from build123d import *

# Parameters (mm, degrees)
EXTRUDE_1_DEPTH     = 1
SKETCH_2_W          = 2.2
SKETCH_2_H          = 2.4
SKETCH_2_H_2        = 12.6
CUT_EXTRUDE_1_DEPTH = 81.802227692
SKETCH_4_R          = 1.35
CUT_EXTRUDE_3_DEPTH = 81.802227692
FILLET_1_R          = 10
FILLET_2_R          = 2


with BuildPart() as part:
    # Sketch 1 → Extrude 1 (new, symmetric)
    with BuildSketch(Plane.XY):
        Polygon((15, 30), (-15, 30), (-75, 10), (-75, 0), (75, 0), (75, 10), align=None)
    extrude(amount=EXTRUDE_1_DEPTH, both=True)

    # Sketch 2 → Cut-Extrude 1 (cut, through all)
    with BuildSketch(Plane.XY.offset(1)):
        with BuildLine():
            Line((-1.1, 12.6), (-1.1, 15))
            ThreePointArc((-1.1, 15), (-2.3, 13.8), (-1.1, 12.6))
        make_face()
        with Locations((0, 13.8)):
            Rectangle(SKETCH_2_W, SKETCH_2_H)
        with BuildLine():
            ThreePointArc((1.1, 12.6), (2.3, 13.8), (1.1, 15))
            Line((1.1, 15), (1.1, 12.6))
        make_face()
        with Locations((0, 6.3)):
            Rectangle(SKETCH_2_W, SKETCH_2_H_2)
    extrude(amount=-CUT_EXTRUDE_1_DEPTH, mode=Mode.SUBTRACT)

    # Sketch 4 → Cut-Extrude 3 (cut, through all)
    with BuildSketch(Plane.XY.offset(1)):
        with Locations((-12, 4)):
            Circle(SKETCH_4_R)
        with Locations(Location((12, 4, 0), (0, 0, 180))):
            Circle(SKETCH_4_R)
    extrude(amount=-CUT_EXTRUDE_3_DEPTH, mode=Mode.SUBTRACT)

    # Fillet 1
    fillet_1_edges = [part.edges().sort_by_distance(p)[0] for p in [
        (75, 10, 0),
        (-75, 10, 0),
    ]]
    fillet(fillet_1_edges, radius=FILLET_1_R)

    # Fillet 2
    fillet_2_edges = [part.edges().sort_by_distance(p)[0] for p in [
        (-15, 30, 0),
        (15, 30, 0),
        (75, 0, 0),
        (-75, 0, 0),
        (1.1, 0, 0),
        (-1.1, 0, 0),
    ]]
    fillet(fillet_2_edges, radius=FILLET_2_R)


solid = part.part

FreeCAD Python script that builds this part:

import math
import FreeCAD as App
import Part
import Sketcher


def edges_at(feature, points):
    """Names of the edges that pass closest to the given points."""
    edges = feature.Shape.Edges
    near = lambda p: min(range(len(edges)), key=lambda i: edges[i].distToShape(Part.Vertex(*p))[0])
    return sorted({f"Edge{near(p) + 1}" for p in points})

doc = App.newDocument("Part")
body = doc.addObject("PartDesign::Body", "Body")

# Sketch on XY plane
sketch1 = doc.addObject("Sketcher::SketchObject", "Sketch")
body.addObject(sketch1)
sketch1.AttachmentSupport = (doc.XY_Plane, [""])
sketch1.MapMode = "FlatFace"
sketch1.addGeometry([
    Part.LineSegment(App.Vector(15, 30, 0), App.Vector(-15, 30, 0)),  # 0
    Part.LineSegment(App.Vector(-15, 30, 0), App.Vector(-75, 10, 0)),  # 1
    Part.LineSegment(App.Vector(-75, 10, 0), App.Vector(-75, 0, 0)),  # 2
    Part.LineSegment(App.Vector(-75, 0, 0), App.Vector(75, 0, 0)),  # 3
    Part.LineSegment(App.Vector(75, 0, 0), App.Vector(75, 10, 0)),  # 4
    Part.LineSegment(App.Vector(75, 10, 0), App.Vector(15, 30, 0)),  # 5
], False)
sketch1.addConstraint([
    Sketcher.Constraint("Coincident", 0, 2, 1, 1),
    Sketcher.Constraint("Coincident", 1, 2, 2, 1),
    Sketcher.Constraint("Coincident", 2, 2, 3, 1),
    Sketcher.Constraint("Coincident", 3, 2, 4, 1),
    Sketcher.Constraint("Coincident", 4, 2, 5, 1),
    Sketcher.Constraint("Coincident", 5, 2, 0, 1),
    Sketcher.Constraint("Horizontal", 0),
    Sketcher.Constraint("Vertical", 2),
    Sketcher.Constraint("Horizontal", 3),
    Sketcher.Constraint("Vertical", 4),
    Sketcher.Constraint("Symmetric", 2, 2, 3, 2, -1, 1),
    Sketcher.Constraint("Horizontal", 1, 2, 4, 2),
    Sketcher.Constraint("Equal", 1, 5),
    Sketcher.Constraint("DistanceX", 0, 2, 0, 1, 30.0),
    Sketcher.Constraint("DistanceX", 3, 1, 3, 2, 150.0),
    Sketcher.Constraint("DistanceY", 2, 2, 2, 1, 10.0),
    Sketcher.Constraint("DistanceY", -1, 1, 0, 2, 30.0),
])
pad1 = doc.addObject("PartDesign::Pad", "Pad")
body.addObject(pad1)
pad1.Profile = sketch1
pad1.Length = 2
pad1.Midplane = True

# Sketch on XY plane
sketch2 = doc.addObject("Sketcher::SketchObject", "Sketch001")
body.addObject(sketch2)
sketch2.AttachmentSupport = (doc.XY_Plane, [""])
sketch2.MapMode = "FlatFace"
sketch2.AttachmentOffset = App.Placement(App.Vector(0, 0, 1), App.Rotation())
sketch2.addGeometry([
    Part.ArcOfCircle(Part.Circle(App.Vector(-1.1, 13.8, 0), App.Vector(0, 0, 1), 1.2), math.radians(90), math.radians(270)),  # 0
    Part.LineSegment(App.Vector(-1.1, 12.6, 0), App.Vector(-1.1, 0, 0)),  # 1
    Part.LineSegment(App.Vector(-1.1, 0, 0), App.Vector(1.1, 0, 0)),  # 2
    Part.LineSegment(App.Vector(1.1, 0, 0), App.Vector(1.1, 12.6, 0)),  # 3
    Part.ArcOfCircle(Part.Circle(App.Vector(1.1, 13.8, 0), App.Vector(0, 0, 1), 1.2), math.radians(-90), math.radians(90)),  # 4
    Part.LineSegment(App.Vector(1.1, 15, 0), App.Vector(-1.1, 15, 0)),  # 5
], False)
sketch2.addConstraint([
    Sketcher.Constraint("Coincident", 0, 2, 1, 1),
    Sketcher.Constraint("Coincident", 1, 2, 2, 1),
    Sketcher.Constraint("Coincident", 2, 2, 3, 1),
    Sketcher.Constraint("Coincident", 3, 2, 4, 1),
    Sketcher.Constraint("Tangent", 4, 2, 5, 1),
    Sketcher.Constraint("Tangent", 5, 2, 0, 1),
    Sketcher.Constraint("Vertical", 1),
    Sketcher.Constraint("Horizontal", 2),
    Sketcher.Constraint("Vertical", 3),
    Sketcher.Constraint("Horizontal", 5),
    Sketcher.Constraint("Equal", 0, 4),
    Sketcher.Constraint("Symmetric", 1, 2, 2, 2, -1, 1),
    Sketcher.Constraint("Vertical", 4, 3, 2, 2),
    Sketcher.Constraint("Vertical", 1, 2, 5, 2),
    Sketcher.Constraint("Radius", 0, 1.2),
    Sketcher.Constraint("DistanceX", 2, 1, 2, 2, 2.2),
    Sketcher.Constraint("DistanceY", 1, 2, 1, 1, 12.6),
])
pocket1 = doc.addObject("PartDesign::Pocket", "Pocket")
body.addObject(pocket1)
pocket1.Profile = sketch2
pocket1.Type = "ThroughAll"

# Sketch on XY plane
sketch3 = doc.addObject("Sketcher::SketchObject", "Sketch002")
body.addObject(sketch3)
sketch3.AttachmentSupport = (doc.XY_Plane, [""])
sketch3.MapMode = "FlatFace"
sketch3.AttachmentOffset = App.Placement(App.Vector(0, 0, 1), App.Rotation())
sketch3.addGeometry([
    Part.Circle(App.Vector(-12, 4, 0), App.Vector(0, 0, 1), 1.4),
    Part.Circle(App.Vector(12, 4, 0), App.Vector(0, 0, 1), 1.4),
], False)
sketch3.addConstraint([
    Sketcher.Constraint("Equal", 0, 1),
    Sketcher.Constraint("Symmetric", 0, 3, 1, 3, -2),
    Sketcher.Constraint("Diameter", 0, 2.7),
    Sketcher.Constraint("DistanceX", 0, 3, -1, 1, 12.0),
    Sketcher.Constraint("DistanceY", -1, 1, 0, 3, 4.0),
])
pocket2 = doc.addObject("PartDesign::Pocket", "Pocket001")
body.addObject(pocket2)
pocket2.Profile = sketch3
pocket2.Type = "ThroughAll"
doc.recompute()

fillet = doc.addObject("PartDesign::Fillet", "Fillet")
body.addObject(fillet)
fillet.Base = (pocket2, edges_at(pocket2, [(75, 10, 0), (-75, 10, 0)]))
fillet.Radius = 10
doc.recompute()

fillet2 = doc.addObject("PartDesign::Fillet", "Fillet001")
body.addObject(fillet2)
fillet2.Base = (fillet, edges_at(fillet, [
    (-15, 30, 0),
    (15, 30, 0),
    (75, 0, 0),
    (-75, 0, 0),
    (1.1, 0, 0),
    (-1.1, 0, 0),
]))
fillet2.Radius = 2

doc.recompute()
